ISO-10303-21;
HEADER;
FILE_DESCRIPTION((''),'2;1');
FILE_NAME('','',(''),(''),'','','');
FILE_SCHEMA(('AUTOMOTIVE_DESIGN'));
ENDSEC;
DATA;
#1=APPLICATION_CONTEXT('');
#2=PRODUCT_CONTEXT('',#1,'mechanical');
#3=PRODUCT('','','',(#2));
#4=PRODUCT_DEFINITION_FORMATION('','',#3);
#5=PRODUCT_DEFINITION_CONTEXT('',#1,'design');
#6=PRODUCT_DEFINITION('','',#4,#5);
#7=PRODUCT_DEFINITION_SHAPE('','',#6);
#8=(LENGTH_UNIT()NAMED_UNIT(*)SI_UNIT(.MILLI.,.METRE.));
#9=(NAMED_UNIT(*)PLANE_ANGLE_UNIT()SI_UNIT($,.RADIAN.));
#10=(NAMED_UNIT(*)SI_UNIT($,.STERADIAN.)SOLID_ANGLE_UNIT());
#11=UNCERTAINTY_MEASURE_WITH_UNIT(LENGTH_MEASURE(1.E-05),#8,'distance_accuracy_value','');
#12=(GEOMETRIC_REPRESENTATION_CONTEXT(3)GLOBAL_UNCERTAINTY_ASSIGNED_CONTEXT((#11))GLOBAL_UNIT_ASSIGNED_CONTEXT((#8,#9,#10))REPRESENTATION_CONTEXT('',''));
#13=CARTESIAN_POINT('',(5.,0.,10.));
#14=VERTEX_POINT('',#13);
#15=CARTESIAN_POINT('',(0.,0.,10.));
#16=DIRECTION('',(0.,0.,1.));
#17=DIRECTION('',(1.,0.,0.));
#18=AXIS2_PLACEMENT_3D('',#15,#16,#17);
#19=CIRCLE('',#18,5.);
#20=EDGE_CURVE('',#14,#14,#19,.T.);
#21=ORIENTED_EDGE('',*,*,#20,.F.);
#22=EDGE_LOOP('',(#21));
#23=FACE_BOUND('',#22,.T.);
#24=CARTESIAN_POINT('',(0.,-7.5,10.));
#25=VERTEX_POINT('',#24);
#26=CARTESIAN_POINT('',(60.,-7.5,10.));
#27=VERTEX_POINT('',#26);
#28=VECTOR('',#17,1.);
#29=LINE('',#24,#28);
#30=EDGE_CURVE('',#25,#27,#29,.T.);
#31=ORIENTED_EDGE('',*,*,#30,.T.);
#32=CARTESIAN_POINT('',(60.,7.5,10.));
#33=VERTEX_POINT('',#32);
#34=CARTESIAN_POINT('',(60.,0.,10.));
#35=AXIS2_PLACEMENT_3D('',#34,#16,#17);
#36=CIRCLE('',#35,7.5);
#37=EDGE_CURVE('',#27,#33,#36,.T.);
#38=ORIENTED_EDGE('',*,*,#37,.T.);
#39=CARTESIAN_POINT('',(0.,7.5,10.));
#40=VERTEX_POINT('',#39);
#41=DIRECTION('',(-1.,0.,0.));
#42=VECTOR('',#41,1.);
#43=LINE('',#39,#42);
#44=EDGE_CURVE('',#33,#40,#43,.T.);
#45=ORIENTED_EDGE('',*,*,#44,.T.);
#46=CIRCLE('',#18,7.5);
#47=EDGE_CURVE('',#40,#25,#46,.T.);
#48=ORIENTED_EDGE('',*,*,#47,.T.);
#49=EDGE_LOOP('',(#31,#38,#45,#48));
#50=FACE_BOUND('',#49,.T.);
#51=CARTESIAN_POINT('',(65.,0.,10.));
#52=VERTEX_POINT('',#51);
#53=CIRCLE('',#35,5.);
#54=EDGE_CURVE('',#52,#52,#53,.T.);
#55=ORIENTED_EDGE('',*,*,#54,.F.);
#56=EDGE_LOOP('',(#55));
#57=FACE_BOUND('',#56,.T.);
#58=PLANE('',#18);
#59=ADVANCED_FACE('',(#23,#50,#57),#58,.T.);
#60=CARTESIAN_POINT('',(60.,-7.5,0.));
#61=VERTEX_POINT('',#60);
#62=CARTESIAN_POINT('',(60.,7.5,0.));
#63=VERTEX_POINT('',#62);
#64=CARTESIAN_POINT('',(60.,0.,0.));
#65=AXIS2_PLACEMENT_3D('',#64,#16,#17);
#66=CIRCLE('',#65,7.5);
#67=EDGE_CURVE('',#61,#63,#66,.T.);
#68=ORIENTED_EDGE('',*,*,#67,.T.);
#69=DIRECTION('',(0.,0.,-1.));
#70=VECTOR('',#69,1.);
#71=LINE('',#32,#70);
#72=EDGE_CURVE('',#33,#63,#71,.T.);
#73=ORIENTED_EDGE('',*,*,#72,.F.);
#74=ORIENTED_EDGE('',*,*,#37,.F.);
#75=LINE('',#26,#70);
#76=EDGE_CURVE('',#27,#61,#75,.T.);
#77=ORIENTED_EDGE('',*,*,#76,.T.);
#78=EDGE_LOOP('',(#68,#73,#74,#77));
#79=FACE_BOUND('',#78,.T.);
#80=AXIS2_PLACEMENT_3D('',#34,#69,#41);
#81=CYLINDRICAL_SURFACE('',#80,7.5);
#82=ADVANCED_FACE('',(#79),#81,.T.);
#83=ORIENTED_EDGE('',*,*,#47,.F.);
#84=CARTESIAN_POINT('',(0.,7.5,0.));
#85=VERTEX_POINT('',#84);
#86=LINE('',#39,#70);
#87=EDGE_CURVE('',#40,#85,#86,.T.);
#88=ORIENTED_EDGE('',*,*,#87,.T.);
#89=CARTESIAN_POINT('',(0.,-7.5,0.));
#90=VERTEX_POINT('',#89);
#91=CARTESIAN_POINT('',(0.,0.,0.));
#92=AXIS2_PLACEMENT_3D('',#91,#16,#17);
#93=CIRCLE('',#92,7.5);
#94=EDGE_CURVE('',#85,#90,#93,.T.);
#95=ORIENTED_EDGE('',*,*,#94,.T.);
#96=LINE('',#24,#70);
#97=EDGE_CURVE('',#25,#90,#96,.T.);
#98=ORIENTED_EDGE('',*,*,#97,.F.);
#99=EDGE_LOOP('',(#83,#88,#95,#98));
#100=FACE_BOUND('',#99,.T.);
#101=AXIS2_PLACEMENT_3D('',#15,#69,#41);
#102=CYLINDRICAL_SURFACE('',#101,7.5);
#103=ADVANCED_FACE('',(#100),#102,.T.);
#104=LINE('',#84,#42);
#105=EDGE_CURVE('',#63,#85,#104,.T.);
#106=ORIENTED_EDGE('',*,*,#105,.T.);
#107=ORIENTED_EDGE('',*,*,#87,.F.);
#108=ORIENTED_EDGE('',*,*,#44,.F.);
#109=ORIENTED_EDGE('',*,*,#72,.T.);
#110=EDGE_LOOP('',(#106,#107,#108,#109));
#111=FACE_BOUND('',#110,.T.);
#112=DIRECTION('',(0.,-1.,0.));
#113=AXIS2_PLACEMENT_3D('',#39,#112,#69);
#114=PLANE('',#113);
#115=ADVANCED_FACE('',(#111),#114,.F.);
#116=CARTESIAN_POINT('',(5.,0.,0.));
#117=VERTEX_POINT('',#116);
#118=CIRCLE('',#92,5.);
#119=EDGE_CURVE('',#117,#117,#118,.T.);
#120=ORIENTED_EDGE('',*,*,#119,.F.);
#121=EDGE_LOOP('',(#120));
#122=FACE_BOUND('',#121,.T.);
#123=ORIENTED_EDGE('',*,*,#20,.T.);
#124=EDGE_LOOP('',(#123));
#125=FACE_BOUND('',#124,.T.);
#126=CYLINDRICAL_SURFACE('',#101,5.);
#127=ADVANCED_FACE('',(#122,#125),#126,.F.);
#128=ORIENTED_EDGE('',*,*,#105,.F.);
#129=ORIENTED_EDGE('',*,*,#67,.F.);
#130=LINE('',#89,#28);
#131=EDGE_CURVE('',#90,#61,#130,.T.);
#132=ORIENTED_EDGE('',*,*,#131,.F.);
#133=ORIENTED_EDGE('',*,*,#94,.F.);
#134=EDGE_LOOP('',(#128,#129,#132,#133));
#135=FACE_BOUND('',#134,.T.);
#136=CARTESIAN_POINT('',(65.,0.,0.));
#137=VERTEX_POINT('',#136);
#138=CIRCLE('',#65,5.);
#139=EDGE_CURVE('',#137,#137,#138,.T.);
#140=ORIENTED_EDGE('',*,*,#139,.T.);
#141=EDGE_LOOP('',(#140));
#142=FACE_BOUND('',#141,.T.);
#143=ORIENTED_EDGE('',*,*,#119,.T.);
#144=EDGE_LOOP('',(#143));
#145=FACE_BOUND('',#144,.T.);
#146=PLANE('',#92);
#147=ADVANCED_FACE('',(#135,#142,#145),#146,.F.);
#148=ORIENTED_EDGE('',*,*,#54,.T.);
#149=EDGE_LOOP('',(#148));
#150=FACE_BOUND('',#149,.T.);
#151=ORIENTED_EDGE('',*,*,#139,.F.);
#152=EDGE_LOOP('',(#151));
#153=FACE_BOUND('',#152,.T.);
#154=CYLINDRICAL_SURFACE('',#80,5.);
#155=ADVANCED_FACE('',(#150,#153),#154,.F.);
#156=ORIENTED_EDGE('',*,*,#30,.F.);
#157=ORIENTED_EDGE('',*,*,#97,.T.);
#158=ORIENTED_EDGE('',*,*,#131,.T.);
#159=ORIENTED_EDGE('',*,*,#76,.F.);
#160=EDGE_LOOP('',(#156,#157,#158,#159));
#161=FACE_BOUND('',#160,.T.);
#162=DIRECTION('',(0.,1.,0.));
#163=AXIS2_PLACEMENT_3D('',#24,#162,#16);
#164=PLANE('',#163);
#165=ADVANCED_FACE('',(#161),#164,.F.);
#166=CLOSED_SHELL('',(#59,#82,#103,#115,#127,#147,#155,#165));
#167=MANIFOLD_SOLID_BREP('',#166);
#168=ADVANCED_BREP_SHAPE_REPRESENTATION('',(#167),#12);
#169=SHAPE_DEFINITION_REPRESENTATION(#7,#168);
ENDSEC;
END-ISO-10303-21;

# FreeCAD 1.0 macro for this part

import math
import FreeCAD as App
import Part
import Sketcher
from FreeCAD import Vector
Q = App.Units.Quantity

doc = App.newDocument("Part")
body = doc.addObject("PartDesign::Body", "Body")

sketch1 = body.newObject("Sketcher::SketchObject", "Sketch")
sketch1.AttachmentSupport = (doc.getObject("XY_Plane"), [""])
sketch1.MapMode = "FlatFace"
sketch1.addGeometry([
    Part.LineSegment(Vector(60, 7.5, 0), Vector(0, 7.5, 0)),
    Part.ArcOfCircle(Part.Circle(Vector(0, 0, 0), Vector(0, 0, 1), 7.5), math.radians(90), math.radians(270)),
    Part.LineSegment(Vector(0, -7.5, 0), Vector(60, -7.5, 0)),
    Part.ArcOfCircle(Part.Circle(Vector(60, 0, 0), Vector(0, 0, 1), 7.5), math.radians(-90), math.radians(90)),
    Part.Circle(Vector(60, 0, 0), Vector(0, 0, 1), 5),
    Part.Circle(Vector(0, 0, 0), Vector(0, 0, 1), 5),
], False)
sketch1.addConstraint([
    Sketcher.Constraint("Tangent", 0, 2, 1, 1),
    Sketcher.Constraint("Tangent", 1, 2, 2, 1),
    Sketcher.Constraint("Tangent", 2, 2, 3, 1),
    Sketcher.Constraint("Tangent", 3, 2, 0, 1),
    Sketcher.Constraint("Horizontal", 0),
    Sketcher.Constraint("Horizontal", 2),
    Sketcher.Constraint("Coincident", 1, 3, -1, 1),
    Sketcher.Constraint("Coincident", 5, 3, -1, 1),
    Sketcher.Constraint("Coincident", 4, 3, 3, 3),
    Sketcher.Constraint("Equal", 4, 5),
    Sketcher.Constraint("Diameter", 4, Q("10 mm")),
    Sketcher.Constraint("Radius", 1, Q("7.5 mm")),
    Sketcher.Constraint("DistanceX", 0, 2, 0, 1, Q("60 mm")),
])
pad1 = body.newObject("PartDesign::Pad", "Pad")
pad1.Profile = sketch1
pad1.Length = 10

doc.recompute()
